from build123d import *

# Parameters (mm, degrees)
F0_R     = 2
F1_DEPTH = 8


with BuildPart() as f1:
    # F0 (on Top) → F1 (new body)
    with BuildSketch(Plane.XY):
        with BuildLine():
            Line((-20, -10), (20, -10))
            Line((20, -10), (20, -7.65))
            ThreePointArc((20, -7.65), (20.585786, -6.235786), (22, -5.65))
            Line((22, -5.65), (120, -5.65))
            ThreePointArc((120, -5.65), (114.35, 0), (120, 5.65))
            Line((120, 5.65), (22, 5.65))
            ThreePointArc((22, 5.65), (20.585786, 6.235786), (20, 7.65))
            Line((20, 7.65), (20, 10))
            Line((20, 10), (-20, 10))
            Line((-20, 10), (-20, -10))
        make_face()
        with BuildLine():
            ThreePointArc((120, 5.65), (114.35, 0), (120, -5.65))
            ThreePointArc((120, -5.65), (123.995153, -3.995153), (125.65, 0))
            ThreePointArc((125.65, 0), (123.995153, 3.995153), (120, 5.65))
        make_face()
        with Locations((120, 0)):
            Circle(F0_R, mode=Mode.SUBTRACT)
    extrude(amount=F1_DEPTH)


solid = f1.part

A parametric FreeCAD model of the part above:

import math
import FreeCAD as App
import Part
import Sketcher

V = App.Vector
Q = App.Units.Quantity

doc = App.newDocument("Part")
params = doc.addObject("Spreadsheet::Sheet", "Params")
for row, (alias, value) in enumerate([
    ("sketch1_diameter", "4 mm"),
    ("sketch1_width", "40 mm"),
    ("sketch1_width2", "98 mm"),
    ("sketch1_height", "20 mm"),
    ("sketch1_radius", "5.650001 mm"),
    ("pad1_length", "8 mm"),
], start=1):
    params.set(f"A{row}", alias)
    params.set(f"B{row}", "=" + value)
    params.setAlias(f"B{row}", alias)

body = doc.addObject("PartDesign::Body", "Body")

sketch1 = doc.addObject("Sketcher::SketchObject", "Sketch")
body.addObject(sketch1)
sketch1.AttachmentSupport = (doc.XY_Plane, [""])
sketch1.MapMode = "FlatFace"
sketch1.addGeometry([
    Part.LineSegment(V(-20, -10, 0), V(20, -10, 0)),
    Part.LineSegment(V(20, -10, 0), V(20, -7.7, 0)),
    Part.ArcOfCircle(Part.Circle(V(22, -7.6, 0), V(0, 0, 1), 2), math.radians(90), math.radians(180)),
    Part.LineSegment(V(22, -5.7, 0), V(120, -5.7, 0)),
    Part.ArcOfCircle(Part.Circle(V(120, 0, 0), V(0, 0, 1), 5.7), math.radians(-90), math.radians(0)),
    Part.ArcOfCircle(Part.Circle(V(120, 0, 0), V(0, 0, 1), 5.7), math.radians(0), math.radians(90)),
    Part.LineSegment(V(120, 5.7, 0), V(22, 5.7, 0)),
    Part.ArcOfCircle(Part.Circle(V(22, 7.6, 0), V(0, 0, 1), 2), math.radians(180), math.radians(270)),
    Part.LineSegment(V(20, 7.7, 0), V(20, 10, 0)),
    Part.LineSegment(V(20, 10, 0), V(-20, 10, 0)),
    Part.LineSegment(V(-20, 10, 0), V(-20, -10, 0)),
    Part.Circle(V(120, 0, 0), V(0, 0, 1), 2),
], False)
sketch1.addConstraint([
    Sketcher.Constraint("Coincident", 0, 2, 1, 1),
    Sketcher.Constraint("Tangent", 1, 2, 2, 2),
    Sketcher.Constraint("Tangent", 2, 1, 3, 1),
    Sketcher.Constraint("Tangent", 3, 2, 4, 1),
    Sketcher.Constraint("Tangent", 4, 2, 5, 1),
    Sketcher.Constraint("Tangent", 5, 2, 6, 1),
    Sketcher.Constraint("Tangent", 6, 2, 7, 2),
    Sketcher.Constraint("Tangent", 7, 1, 8, 1),
    Sketcher.Constraint("Coincident", 8, 2, 9, 1),
    Sketcher.Constraint("Coincident", 9, 2, 10, 1),
    Sketcher.Constraint("Coincident", 10, 2, 0, 1),
    Sketcher.Constraint("Horizontal", 0),
    Sketcher.Constraint("Vertical", 1),
    Sketcher.Constraint("Horizontal", 3),
    Sketcher.Constraint("Horizontal", 6),
    Sketcher.Constraint("Vertical", 8),
    Sketcher.Constraint("Horizontal", 9),
    Sketcher.Constraint("Vertical", 10),
    Sketcher.Constraint("Coincident", 11, 3, 4, 3),
    Sketcher.Constraint("Equal", 4, 5),
    Sketcher.Constraint("Equal", 2, 7),
    Sketcher.Constraint("Equal", 7, 11),
    Sketcher.Constraint("Symmetric", 0, 2, 9, 2, -1, 1),
    Sketcher.Constraint("Symmetric", 2, 3, 7, 3, -1),
    Sketcher.Constraint("PointOnObject", 4, 2, -1),
    Sketcher.Constraint("Diameter", 11, Q("4 mm")),
    Sketcher.Constraint("DistanceX", 0, 1, 0, 2, Q("40 mm")),
    Sketcher.Constraint("DistanceX", 3, 1, 3, 2, Q("98 mm")),
    Sketcher.Constraint("DistanceY", 10, 2, 10, 1, Q("20 mm")),
    Sketcher.Constraint("Radius", 4, Q("5.650001 mm")),
])
sketch1.setExpression("Constraints[25]", "Params.sketch1_diameter")
sketch1.setExpression("Constraints[26]", "Params.sketch1_width")
sketch1.setExpression("Constraints[27]", "Params.sketch1_width2")
sketch1.setExpression("Constraints[28]", "Params.sketch1_height")
sketch1.setExpression("Constraints[29]", "Params.sketch1_radius")
pad1 = doc.addObject("PartDesign::Pad", "Pad")
body.addObject(pad1)
pad1.Profile = sketch1
pad1.setExpression("Length", "Params.pad1_length")

doc.recompute()
